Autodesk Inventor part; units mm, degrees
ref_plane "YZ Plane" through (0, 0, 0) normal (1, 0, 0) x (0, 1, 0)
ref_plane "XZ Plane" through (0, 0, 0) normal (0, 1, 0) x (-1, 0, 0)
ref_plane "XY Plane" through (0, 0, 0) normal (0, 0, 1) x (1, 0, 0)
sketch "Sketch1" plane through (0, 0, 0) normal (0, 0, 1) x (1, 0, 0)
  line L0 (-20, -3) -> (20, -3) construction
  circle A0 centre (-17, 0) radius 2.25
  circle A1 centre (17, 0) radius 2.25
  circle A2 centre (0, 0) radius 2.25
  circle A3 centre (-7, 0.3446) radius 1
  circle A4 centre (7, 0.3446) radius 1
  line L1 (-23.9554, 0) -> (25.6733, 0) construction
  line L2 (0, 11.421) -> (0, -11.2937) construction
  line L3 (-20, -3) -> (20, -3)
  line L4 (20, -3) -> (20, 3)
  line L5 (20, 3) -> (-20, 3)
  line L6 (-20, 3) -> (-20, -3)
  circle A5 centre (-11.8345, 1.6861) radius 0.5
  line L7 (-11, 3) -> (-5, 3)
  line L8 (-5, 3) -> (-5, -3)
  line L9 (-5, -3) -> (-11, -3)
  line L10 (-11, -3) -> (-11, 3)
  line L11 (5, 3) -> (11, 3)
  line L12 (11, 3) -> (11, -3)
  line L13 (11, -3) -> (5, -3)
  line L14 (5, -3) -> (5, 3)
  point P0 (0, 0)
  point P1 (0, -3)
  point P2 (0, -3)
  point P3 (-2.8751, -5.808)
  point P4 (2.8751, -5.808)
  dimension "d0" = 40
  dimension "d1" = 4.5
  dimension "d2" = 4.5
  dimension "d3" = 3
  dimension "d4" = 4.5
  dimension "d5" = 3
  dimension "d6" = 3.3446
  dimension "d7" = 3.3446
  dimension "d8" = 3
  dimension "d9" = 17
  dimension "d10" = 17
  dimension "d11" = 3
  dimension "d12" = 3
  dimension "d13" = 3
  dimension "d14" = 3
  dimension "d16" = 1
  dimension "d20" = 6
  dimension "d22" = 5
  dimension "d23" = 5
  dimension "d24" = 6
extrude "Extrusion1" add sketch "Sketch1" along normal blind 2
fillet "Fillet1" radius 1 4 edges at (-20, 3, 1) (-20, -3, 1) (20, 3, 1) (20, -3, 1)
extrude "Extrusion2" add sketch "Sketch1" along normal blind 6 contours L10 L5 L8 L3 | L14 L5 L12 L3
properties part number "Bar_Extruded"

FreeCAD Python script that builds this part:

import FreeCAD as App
import Part
import Sketcher
from FreeCAD import Vector


def edges_at(feature, points):
    """Names of the edges that pass closest to the given points."""
    edges = feature.Shape.Edges
    near = lambda p: min(range(len(edges)), key=lambda i: edges[i].distToShape(Part.Vertex(*p))[0])
    return sorted({f"Edge{near(p) + 1}" for p in points})


def add_polygon(sketch, points):
    """Adds a closed chain of lines whose ends are joined by coincident constraints."""
    first, n = sketch.GeometryCount, len(points)
    for a, b in zip(points, points[1:] + points[:1]):
        sketch.addGeometry(Part.LineSegment(App.Vector(*a, 0), App.Vector(*b, 0)), False)
    for i in range(n):
        sketch.addConstraint(Sketcher.Constraint("Coincident", first + i, 2, first + (i + 1) % n, 1))

doc = App.newDocument("Part")
params = doc.addObject("Spreadsheet::Sheet", "Params")
for row, (alias, value) in enumerate([
    ("sketch1_diameter", "1 mm"),
    ("sketch1_diameter2", "2 mm"),
    ("sketch1_diameter3", "4.5 mm"),
    ("sketch1_width", "40 mm"),
    ("sketch1_height", "6 mm"),
    ("pad1_length", "2 mm"),
    ("fillet_radius", "1 mm"),
    ("sketch2_diameter", "2 mm"),
    ("sketch2_width", "6 mm"),
    ("pad2_length", "6 mm"),
], start=1):
    params.set(f"A{row}", alias)
    params.set(f"B{row}", "=" + value)
    params.setAlias(f"B{row}", alias)

body = doc.addObject("PartDesign::Body", "Body")

# Sketch on XY plane
sketch1 = body.newObject("Sketcher::SketchObject", "Sketch")
sketch1.AttachmentSupport = (doc.getObject("XY_Plane"), [""])
sketch1.MapMode = "FlatFace"
add_polygon(sketch1, [(-20, 3), (-20, -3), (20, -3), (20, 3)])  # lines 0-3
sketch1.addGeometry(Part.Circle(Vector(-17, 0, 0), Vector(0, 0, 1), 2.2), False)  # 4
sketch1.addGeometry(Part.Circle(Vector(-11.8, 1.7, 0), Vector(0, 0, 1), 0.5), False)  # 5
sketch1.addGeometry(Part.Circle(Vector(-7, 0.3, 0), Vector(0, 0, 1), 1), False)  # 6
sketch1.addGeometry(Part.Circle(Vector(0, 0, 0), Vector(0, 0, 1), 2.2), False)  # 7
sketch1.addGeometry(Part.Circle(Vector(7, 0.3, 0), Vector(0, 0, 1), 1), False)  # 8
sketch1.addGeometry(Part.Circle(Vector(17, 0, 0), Vector(0, 0, 1), 2.2), False)  # 9
sketch1.addConstraint([
    Sketcher.Constraint("Vertical", 0),
    Sketcher.Constraint("Horizontal", 1),
    Sketcher.Constraint("Vertical", 2),
    Sketcher.Constraint("Horizontal", 3),
    Sketcher.Constraint("Coincident", 7, 3, -1, 1),
    Sketcher.Constraint("Equal", 4, 7),
    Sketcher.Constraint("Equal", 6, 8),
    Sketcher.Constraint("Equal", 7, 9),
    Sketcher.Constraint("Symmetric", 4, 3, 9, 3, -1, 1),
    Sketcher.Constraint("Symmetric", 0, 2, 2, 2, -1, 1),
    Sketcher.Constraint("Symmetric", 6, 3, 8, 3, -2),
    Sketcher.Constraint("PointOnObject", 4, 3, -1),
    Sketcher.Constraint("Diameter", 5, 1.0),
    Sketcher.Constraint("Diameter", 6, 2.0),
    Sketcher.Constraint("Diameter", 4, 4.5),
    Sketcher.Constraint("DistanceX", 1, 1, 1, 2, 40.0),
    Sketcher.Constraint("DistanceY", 0, 2, 0, 1, 6.0),
    Sketcher.Constraint("DistanceX", 4, 3, -1, 1, 17.0),
    Sketcher.Constraint("DistanceX", 6, 3, -1, 1, 7.0),
    Sketcher.Constraint("DistanceY", 0, 2, 6, 3, 3.3446),
    Sketcher.Constraint("DistanceY", -1, 1, 5, 3, 1.686),
    Sketcher.Constraint("DistanceX", 5, 3, -1, 1, 11.8345),
])
sketch1.setExpression("Constraints[16]", "Params.sketch1_diameter")
sketch1.setExpression("Constraints[17]", "Params.sketch1_diameter2")
sketch1.setExpression("Constraints[18]", "Params.sketch1_diameter3")
sketch1.setExpression("Constraints[19]", "Params.sketch1_width")
sketch1.setExpression("Constraints[20]", "Params.sketch1_height")
pad1 = body.newObject("PartDesign::Pad", "Pad")
pad1.Profile = sketch1
pad1.setExpression("Length", "Params.pad1_length")
doc.recompute()

fillet = body.newObject("PartDesign::Fillet", "Fillet")
fillet.Base = (pad1, edges_at(pad1, [
    (-20, 3, 1),
    (-20, -3, 1),
    (20, 3, 1),
    (20, -3, 1),
]))
fillet.setExpression("Radius", "Params.fillet_radius")

# Sketch on XY plane
sketch2 = body.newObject("Sketcher::SketchObject", "Sketch001")
sketch2.AttachmentSupport = (doc.getObject("XY_Plane"), [""])
sketch2.MapMode = "FlatFace"
add_polygon(sketch2, [(-11, 3), (-11, -3), (-5, -3), (-5, 3)])  # lines 0-3
sketch2.addGeometry(Part.Circle(Vector(-7, 0.3, 0), Vector(0, 0, 1), 1), False)  # 4
add_polygon(sketch2, [(5, 3), (5, -3), (11, -3), (11, 3)])  # lines 5-8
sketch2.addGeometry(Part.Circle(Vector(7, 0.3, 0), Vector(0, 0, 1), 1), False)  # 9
sketch2.addConstraint([
    Sketcher.Constraint("Vertical", 0),
    Sketcher.Constraint("Horizontal", 1),
    Sketcher.Constraint("Vertical", 2),
    Sketcher.Constraint("Horizontal", 3),
    Sketcher.Constraint("Vertical", 5),
    Sketcher.Constraint("Horizontal", 6),
    Sketcher.Constraint("Vertical", 7),
    Sketcher.Constraint("Horizontal", 8),
    Sketcher.Constraint("Equal", 4, 9),
    Sketcher.Constraint("Symmetric", 2, 2, 5, 2, -1, 1),
    Sketcher.Constraint("Symmetric", 0, 2, 7, 2, -1, 1),
    Sketcher.Constraint("Symmetric", 4, 3, 9, 3, -2),
    Sketcher.Constraint("Horizontal", 1, 2, 5, 2),
    Sketcher.Constraint("Equal", 8, 0),
    Sketcher.Constraint("Diameter", 4, 2.0),
    Sketcher.Constraint("DistanceX", 1, 1, 1, 2, 6.0),
    Sketcher.Constraint("DistanceX", 1, 2, -1, 1, 5.0),
    Sketcher.Constraint("DistanceX", 4, 3, -1, 1, 7.0),
    Sketcher.Constraint("DistanceY", 0, 2, 4, 3, 3.3446),
])
sketch2.setExpression("Constraints[22]", "Params.sketch2_diameter")
sketch2.setExpression("Constraints[23]", "Params.sketch2_width")
pad2 = body.newObject("PartDesign::Pad", "Pad001")
pad2.Profile = sketch2
pad2.setExpression("Length", "Params.pad2_length")

doc.recompute()
